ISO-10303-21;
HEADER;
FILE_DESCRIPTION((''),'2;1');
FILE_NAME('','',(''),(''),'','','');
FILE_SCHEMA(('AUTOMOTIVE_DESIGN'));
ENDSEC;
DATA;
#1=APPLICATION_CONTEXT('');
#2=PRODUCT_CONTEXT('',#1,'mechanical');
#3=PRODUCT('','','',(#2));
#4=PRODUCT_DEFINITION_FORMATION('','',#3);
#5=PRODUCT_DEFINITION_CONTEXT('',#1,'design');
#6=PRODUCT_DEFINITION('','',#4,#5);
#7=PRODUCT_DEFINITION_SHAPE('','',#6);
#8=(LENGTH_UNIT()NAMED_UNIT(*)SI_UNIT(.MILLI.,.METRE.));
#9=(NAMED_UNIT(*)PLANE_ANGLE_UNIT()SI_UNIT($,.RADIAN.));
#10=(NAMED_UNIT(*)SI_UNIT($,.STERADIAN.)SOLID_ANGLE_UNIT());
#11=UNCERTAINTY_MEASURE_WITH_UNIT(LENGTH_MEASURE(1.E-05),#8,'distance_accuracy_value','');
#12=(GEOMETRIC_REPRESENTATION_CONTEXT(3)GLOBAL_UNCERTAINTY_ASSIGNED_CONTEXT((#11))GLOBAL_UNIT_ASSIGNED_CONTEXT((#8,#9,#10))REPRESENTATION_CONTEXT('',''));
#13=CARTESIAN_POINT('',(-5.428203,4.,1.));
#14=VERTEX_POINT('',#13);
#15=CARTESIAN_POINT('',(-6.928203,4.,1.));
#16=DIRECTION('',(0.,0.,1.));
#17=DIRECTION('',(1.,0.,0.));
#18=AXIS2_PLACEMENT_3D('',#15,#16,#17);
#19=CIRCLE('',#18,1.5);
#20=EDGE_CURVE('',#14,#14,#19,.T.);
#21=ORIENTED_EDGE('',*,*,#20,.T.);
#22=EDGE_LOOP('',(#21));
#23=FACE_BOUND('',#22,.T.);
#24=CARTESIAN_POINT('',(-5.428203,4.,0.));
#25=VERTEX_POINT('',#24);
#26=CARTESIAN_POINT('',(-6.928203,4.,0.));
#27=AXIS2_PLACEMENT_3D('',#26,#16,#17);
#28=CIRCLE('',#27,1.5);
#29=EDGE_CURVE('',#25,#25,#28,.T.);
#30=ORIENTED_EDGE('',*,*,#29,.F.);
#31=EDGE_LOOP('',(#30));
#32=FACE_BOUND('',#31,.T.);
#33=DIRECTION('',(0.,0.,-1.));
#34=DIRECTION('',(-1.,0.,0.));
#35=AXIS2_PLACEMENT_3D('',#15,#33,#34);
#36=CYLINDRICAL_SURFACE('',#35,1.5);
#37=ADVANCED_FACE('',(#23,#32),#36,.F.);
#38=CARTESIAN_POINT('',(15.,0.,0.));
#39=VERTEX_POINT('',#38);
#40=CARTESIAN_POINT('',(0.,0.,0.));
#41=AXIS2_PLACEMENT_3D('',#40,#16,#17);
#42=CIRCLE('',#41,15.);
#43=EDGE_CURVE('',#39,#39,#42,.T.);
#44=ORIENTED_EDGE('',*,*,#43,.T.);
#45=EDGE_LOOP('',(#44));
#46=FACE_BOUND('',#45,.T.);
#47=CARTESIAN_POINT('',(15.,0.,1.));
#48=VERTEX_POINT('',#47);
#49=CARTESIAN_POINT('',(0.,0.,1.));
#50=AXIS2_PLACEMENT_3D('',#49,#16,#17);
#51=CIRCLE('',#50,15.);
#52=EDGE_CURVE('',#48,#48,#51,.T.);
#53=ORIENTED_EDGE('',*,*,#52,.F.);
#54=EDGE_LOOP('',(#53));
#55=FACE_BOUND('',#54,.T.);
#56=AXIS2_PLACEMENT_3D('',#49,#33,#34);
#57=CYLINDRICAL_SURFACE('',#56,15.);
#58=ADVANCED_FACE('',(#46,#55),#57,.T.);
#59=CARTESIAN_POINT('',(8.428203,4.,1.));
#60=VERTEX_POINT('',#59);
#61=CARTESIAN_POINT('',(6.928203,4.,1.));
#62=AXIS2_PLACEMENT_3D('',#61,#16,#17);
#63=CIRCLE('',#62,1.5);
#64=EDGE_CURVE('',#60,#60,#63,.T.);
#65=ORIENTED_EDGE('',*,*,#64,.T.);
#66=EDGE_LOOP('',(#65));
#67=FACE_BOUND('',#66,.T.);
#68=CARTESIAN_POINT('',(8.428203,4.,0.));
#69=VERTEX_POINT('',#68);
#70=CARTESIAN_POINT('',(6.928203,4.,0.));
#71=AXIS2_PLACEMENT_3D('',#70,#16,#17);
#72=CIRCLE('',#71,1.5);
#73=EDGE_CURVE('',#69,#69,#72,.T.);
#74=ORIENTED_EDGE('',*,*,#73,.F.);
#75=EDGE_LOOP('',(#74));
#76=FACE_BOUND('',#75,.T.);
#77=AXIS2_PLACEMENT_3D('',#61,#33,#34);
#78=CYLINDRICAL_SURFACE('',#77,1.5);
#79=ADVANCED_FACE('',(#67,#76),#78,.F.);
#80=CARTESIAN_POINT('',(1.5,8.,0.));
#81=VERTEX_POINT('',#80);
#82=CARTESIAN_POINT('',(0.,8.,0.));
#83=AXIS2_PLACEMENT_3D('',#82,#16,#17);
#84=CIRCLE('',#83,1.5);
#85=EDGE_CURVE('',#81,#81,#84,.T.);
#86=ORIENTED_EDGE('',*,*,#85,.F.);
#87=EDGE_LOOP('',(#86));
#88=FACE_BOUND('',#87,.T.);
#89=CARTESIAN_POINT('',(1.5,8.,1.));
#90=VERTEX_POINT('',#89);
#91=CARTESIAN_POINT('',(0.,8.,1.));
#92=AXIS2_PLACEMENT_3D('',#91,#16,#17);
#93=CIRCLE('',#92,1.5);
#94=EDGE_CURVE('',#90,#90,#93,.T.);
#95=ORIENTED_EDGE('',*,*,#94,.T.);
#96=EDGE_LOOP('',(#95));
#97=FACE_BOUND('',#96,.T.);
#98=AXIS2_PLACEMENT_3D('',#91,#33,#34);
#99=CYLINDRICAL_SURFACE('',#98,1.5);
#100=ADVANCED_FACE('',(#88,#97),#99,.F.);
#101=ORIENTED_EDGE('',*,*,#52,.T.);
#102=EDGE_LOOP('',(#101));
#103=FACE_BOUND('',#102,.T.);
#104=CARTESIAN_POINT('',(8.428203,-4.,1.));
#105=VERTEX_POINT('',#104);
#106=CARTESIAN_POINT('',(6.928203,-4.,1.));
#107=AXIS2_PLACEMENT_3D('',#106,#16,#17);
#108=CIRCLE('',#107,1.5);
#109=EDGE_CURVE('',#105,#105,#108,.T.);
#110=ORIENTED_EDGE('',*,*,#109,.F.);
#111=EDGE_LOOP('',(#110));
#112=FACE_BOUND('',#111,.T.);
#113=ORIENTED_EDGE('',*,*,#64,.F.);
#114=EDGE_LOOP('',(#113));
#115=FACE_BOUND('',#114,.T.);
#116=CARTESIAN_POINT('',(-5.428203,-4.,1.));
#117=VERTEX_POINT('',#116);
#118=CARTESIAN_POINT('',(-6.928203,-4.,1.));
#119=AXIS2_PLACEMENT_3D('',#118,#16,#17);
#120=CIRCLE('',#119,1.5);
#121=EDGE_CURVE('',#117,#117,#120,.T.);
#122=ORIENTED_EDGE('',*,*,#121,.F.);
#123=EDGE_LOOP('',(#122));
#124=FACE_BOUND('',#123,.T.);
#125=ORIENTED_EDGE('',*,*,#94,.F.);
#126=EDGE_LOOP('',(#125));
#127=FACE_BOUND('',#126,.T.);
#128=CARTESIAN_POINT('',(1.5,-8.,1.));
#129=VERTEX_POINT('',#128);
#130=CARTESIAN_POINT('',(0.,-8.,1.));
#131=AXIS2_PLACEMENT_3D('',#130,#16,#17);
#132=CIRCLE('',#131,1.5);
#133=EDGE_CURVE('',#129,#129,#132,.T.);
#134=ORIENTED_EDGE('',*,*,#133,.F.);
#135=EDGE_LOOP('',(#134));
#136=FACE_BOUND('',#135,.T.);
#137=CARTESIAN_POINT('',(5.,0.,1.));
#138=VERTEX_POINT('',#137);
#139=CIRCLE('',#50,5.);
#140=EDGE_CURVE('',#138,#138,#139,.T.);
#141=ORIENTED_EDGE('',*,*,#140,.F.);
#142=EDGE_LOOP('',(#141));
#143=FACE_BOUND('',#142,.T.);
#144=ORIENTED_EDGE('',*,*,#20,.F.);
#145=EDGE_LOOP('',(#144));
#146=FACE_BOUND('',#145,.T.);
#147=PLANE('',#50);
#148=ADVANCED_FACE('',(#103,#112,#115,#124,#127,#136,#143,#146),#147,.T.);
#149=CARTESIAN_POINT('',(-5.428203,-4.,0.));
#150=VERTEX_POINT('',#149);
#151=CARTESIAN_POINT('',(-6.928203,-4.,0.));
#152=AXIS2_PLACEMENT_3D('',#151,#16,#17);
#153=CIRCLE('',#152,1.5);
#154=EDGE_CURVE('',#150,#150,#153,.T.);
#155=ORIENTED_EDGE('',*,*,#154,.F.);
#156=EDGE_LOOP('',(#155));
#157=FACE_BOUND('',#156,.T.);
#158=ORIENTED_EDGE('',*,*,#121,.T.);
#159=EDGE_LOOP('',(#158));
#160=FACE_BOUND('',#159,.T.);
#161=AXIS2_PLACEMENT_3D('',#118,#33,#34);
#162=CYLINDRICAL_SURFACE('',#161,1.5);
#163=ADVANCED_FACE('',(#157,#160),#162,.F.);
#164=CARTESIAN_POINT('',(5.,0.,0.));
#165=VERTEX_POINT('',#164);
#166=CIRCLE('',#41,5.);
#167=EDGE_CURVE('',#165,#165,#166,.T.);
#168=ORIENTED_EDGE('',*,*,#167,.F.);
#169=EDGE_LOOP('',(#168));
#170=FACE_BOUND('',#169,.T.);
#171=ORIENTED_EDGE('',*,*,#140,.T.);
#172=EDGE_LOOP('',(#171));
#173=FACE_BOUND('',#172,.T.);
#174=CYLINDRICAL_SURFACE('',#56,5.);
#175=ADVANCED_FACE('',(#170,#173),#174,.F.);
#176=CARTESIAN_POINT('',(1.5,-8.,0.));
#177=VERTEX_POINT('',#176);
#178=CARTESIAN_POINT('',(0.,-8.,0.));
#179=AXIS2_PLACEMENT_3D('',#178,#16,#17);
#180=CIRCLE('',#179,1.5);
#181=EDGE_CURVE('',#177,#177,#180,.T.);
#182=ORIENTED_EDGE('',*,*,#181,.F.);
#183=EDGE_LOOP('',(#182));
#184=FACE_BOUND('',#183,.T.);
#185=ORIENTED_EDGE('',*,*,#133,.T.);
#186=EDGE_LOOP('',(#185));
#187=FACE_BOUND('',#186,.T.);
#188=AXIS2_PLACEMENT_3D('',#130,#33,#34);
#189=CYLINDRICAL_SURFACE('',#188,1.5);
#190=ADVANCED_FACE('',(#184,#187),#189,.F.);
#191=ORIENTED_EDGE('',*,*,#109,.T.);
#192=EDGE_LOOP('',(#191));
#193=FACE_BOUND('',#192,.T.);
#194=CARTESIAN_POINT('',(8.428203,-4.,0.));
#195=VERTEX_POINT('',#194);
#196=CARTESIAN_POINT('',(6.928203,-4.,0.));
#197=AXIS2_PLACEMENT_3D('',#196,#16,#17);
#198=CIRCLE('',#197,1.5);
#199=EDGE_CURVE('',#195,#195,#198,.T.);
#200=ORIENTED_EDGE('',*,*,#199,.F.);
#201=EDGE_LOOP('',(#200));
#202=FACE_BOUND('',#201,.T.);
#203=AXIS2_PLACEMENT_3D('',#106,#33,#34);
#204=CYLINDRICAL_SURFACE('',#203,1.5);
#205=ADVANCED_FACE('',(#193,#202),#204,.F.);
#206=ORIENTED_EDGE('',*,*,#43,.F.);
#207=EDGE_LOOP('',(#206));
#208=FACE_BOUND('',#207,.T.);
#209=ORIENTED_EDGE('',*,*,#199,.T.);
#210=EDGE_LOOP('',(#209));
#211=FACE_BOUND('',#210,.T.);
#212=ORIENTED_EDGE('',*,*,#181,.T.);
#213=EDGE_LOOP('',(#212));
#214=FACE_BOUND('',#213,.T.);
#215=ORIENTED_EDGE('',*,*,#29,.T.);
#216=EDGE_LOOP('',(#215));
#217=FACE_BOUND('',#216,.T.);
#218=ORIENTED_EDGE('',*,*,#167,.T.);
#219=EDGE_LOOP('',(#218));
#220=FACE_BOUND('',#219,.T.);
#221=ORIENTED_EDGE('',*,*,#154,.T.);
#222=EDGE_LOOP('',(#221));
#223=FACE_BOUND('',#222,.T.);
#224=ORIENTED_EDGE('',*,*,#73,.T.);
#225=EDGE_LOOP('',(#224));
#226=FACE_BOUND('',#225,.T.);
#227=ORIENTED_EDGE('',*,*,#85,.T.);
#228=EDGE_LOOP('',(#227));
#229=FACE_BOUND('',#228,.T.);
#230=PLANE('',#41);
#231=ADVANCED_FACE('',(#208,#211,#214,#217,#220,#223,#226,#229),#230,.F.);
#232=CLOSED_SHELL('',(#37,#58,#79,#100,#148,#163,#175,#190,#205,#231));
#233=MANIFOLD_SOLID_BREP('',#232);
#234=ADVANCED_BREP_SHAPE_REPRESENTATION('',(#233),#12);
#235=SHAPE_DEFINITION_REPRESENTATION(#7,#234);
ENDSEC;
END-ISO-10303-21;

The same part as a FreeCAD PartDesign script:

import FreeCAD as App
import Part
import Sketcher

V = App.Vector
Q = App.Units.Quantity

doc = App.newDocument("Part")
body = doc.addObject("PartDesign::Body", "Body")

sketch1 = body.newObject("Sketcher::SketchObject", "Sketch")
sketch1.AttachmentSupport = (doc.getObject("XY_Plane"), [""])
sketch1.MapMode = "FlatFace"
sketch1.addGeometry([
    Part.Circle(V(0, 0, 0), V(0, 0, 1), 15),
    Part.Circle(V(0, -8, 0), V(0, 0, 1), 1.5),
    Part.Circle(V(-6.928203, -4, 0), V(0, 0, 1), 1.5),
    Part.Circle(V(6.928203, -4, 0), V(0, 0, 1), 1.5),
    Part.Circle(V(-6.928203, 4, 0), V(0, 0, 1), 1.5),
    Part.Circle(V(0, 8, 0), V(0, 0, 1), 1.5),
    Part.Circle(V(0, 0, 0), V(0, 0, 1), 5),
    Part.Circle(V(6.928203, 4, 0), V(0, 0, 1), 1.5),
], False)
sketch1.addConstraint([
    Sketcher.Constraint("Coincident", 0, 3, -1, 1),
    Sketcher.Constraint("Coincident", 6, 3, -1, 1),
    Sketcher.Constraint("Equal", 1, 2),
    Sketcher.Constraint("Equal", 2, 3),
    Sketcher.Constraint("Equal", 3, 4),
    Sketcher.Constraint("Equal", 4, 5),
    Sketcher.Constraint("Equal", 5, 7),
    Sketcher.Constraint("Symmetric", 3, 3, 4, 3, -1, 1),
    Sketcher.Constraint("Symmetric", 1, 3, 5, 3, -1, 1),
    Sketcher.Constraint("Symmetric", 2, 3, 7, 3, -1, 1),
    Sketcher.Constraint("Symmetric", 2, 3, 3, 3, -2),
    Sketcher.Constraint("PointOnObject", 1, 3, -2),
    Sketcher.Constraint("Diameter", 0, Q("30 mm")),
    Sketcher.Constraint("Diameter", 1, Q("3 mm")),
    Sketcher.Constraint("Diameter", 6, Q("10 mm")),
    Sketcher.Constraint("DistanceY", 1, 3, -1, 1, Q("8 mm")),
    Sketcher.Constraint("DistanceY", 2, 3, -1, 1, Q("4 mm")),
    Sketcher.Constraint("DistanceX", 2, 3, -1, 1, Q("6.928203 mm")),
])
pad1 = body.newObject("PartDesign::Pad", "Pad")
pad1.Profile = sketch1
pad1.Length = 1

doc.recompute()
